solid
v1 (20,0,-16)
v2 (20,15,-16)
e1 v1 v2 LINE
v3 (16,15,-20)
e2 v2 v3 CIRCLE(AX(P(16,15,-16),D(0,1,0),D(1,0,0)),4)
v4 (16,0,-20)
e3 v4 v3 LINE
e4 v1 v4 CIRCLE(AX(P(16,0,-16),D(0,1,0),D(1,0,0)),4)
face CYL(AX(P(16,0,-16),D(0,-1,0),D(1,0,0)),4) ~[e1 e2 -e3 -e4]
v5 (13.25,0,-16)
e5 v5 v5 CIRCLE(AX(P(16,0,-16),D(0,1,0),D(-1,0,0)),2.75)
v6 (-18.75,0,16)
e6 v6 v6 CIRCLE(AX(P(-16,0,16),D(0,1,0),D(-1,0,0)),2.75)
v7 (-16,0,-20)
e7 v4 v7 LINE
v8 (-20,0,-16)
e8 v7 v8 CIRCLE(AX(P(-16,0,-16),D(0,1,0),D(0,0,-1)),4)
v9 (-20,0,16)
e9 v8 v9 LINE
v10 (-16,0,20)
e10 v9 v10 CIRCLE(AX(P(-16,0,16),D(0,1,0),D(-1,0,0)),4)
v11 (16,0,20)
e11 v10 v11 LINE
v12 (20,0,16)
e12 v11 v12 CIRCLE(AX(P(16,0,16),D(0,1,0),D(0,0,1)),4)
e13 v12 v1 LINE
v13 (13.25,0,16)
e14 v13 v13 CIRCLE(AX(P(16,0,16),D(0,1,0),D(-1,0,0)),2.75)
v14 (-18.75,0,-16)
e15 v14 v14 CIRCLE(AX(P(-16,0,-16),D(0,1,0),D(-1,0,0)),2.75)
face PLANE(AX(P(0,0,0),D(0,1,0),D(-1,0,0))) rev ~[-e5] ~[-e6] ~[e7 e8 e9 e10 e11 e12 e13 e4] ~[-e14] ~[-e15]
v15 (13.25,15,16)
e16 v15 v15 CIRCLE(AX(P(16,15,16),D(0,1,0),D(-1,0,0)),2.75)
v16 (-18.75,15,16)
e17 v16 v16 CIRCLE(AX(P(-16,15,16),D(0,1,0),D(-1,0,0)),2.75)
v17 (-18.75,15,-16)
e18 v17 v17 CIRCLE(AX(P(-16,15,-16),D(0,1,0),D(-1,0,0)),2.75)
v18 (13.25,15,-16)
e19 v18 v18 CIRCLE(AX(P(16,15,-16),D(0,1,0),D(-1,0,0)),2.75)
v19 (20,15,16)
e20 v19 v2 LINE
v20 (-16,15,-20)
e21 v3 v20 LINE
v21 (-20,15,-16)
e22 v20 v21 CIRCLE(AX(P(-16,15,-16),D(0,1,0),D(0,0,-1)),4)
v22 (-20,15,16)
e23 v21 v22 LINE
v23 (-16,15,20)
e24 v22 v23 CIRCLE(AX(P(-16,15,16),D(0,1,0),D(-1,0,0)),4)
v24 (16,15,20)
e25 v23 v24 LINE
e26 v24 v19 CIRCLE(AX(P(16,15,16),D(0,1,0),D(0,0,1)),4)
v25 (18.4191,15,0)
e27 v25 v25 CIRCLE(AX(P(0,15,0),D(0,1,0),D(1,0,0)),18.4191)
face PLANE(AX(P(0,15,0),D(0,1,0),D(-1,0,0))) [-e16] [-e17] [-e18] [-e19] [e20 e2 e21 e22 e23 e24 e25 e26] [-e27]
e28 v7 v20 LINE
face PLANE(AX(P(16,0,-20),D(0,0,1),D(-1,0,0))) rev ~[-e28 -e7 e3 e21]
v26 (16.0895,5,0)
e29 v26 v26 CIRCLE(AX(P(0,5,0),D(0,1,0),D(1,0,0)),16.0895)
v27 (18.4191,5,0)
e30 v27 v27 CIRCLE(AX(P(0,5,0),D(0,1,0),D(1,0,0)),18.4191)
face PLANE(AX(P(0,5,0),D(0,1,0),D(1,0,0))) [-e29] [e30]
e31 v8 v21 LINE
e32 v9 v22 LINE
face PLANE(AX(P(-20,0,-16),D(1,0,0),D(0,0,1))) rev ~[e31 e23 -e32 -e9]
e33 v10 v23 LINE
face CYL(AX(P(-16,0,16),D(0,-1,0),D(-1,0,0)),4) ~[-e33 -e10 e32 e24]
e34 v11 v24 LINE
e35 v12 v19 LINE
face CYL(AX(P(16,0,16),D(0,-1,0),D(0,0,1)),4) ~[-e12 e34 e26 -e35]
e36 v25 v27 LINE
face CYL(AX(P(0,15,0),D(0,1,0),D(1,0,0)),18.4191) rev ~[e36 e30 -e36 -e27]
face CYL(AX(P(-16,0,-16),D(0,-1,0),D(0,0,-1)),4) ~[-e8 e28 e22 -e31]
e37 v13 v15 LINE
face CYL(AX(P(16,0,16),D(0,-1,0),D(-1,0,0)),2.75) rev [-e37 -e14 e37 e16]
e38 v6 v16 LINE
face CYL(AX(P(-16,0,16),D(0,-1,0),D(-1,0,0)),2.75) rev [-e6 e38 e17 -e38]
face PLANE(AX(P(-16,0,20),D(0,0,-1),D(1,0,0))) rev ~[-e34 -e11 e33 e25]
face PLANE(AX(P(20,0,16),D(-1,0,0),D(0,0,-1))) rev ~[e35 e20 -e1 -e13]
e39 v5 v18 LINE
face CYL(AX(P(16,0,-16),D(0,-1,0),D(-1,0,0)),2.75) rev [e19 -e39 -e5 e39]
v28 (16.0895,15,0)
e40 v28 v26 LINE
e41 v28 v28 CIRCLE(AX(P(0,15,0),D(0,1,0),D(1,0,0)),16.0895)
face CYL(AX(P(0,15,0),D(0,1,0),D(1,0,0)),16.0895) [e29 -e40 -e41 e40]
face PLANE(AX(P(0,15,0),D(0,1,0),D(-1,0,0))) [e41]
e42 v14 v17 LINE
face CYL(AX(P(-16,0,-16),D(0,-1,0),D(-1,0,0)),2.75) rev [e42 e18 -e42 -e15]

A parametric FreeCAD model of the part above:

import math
import FreeCAD as App
import Part
import Sketcher

V = App.Vector
Q = App.Units.Quantity

doc = App.newDocument("Part")
body = doc.addObject("PartDesign::Body", "Body")

# Sketch on XZ plane
sketch1 = doc.addObject("Sketcher::SketchObject", "Sketch")
body.addObject(sketch1)
sketch1.AttachmentSupport = (doc.XZ_Plane, [""])
sketch1.MapMode = "FlatFace"
sketch1.addGeometry([
    Part.ArcOfCircle(Part.Circle(V(-16, 16, 0), V(0, 0, 1), 4), math.radians(90), math.radians(180)),  # 0
    Part.LineSegment(V(-16, 20, 0), V(16, 20, 0)),  # 1
    Part.ArcOfCircle(Part.Circle(V(16, 16, 0), V(0, 0, 1), 4), math.radians(0), math.radians(90)),  # 2
    Part.LineSegment(V(20, 16, 0), V(20, -16, 0)),  # 3
    Part.ArcOfCircle(Part.Circle(V(16, -16, 0), V(0, 0, 1), 4), math.radians(-90), math.radians(0)),  # 4
    Part.LineSegment(V(16, -20, 0), V(-16, -20, 0)),  # 5
    Part.ArcOfCircle(Part.Circle(V(-16, -16, 0), V(0, 0, 1), 4), math.radians(180), math.radians(270)),  # 6
    Part.LineSegment(V(-20, -16, 0), V(-20, 16, 0)),  # 7
    Part.Circle(V(16, -16, 0), V(0, 0, 1), 2.8),  # 8
    Part.Circle(V(-16, -16, 0), V(0, 0, 1), 2.8),  # 9
    Part.Circle(V(16, 16, 0), V(0, 0, 1), 2.8),  # 10
    Part.Circle(V(-16, 16, 0), V(0, 0, 1), 2.8),  # 11
], False)
sketch1.addConstraint([
    Sketcher.Constraint("Tangent", 0, 1, 1, 1),
    Sketcher.Constraint("Tangent", 1, 2, 2, 2),
    Sketcher.Constraint("Tangent", 2, 1, 3, 1),
    Sketcher.Constraint("Tangent", 3, 2, 4, 2),
    Sketcher.Constraint("Tangent", 4, 1, 5, 1),
    Sketcher.Constraint("Tangent", 5, 2, 6, 2),
    Sketcher.Constraint("Tangent", 6, 1, 7, 1),
    Sketcher.Constraint("Tangent", 7, 2, 0, 2),
    Sketcher.Constraint("Horizontal", 1),
    Sketcher.Constraint("Vertical", 3),
    Sketcher.Constraint("Horizontal", 5),
    Sketcher.Constraint("Vertical", 7),
    Sketcher.Constraint("Coincident", 8, 3, 4, 3),
    Sketcher.Constraint("Coincident", 9, 3, 6, 3),
    Sketcher.Constraint("Coincident", 10, 3, 2, 3),
    Sketcher.Constraint("Coincident", 11, 3, 0, 3),
    Sketcher.Constraint("Equal", 0, 2),
    Sketcher.Constraint("Equal", 2, 4),
    Sketcher.Constraint("Equal", 4, 6),
    Sketcher.Constraint("Equal", 8, 9),
    Sketcher.Constraint("Equal", 9, 10),
    Sketcher.Constraint("Equal", 10, 11),
    Sketcher.Constraint("Symmetric", 0, 3, 4, 3, -1, 1),
    Sketcher.Constraint("Equal", 5, 3),
    Sketcher.Constraint("Diameter", 8, Q("5.5 mm")),
    Sketcher.Constraint("DistanceX", 1, 1, 1, 2, Q("32 mm")),
    Sketcher.Constraint("Radius", 0, Q("4 mm")),
])
pad1 = doc.addObject("PartDesign::Pad", "Pad")
body.addObject(pad1)
pad1.Profile = sketch1
pad1.Length = 15
pad1.Reversed = True

# Sketch on XZ plane
sketch2 = doc.addObject("Sketcher::SketchObject", "Sketch001")
body.addObject(sketch2)
sketch2.AttachmentSupport = (doc.XZ_Plane, [""])
sketch2.MapMode = "FlatFace"
sketch2.AttachmentOffset = App.Placement(V(0, 0, -15), App.Rotation())
sketch2.addGeometry([
    Part.Circle(V(0, 0, 0), V(0, 0, 1), 18),
    Part.Circle(V(0, 0, 0), V(0, 0, 1), 16),
], False)
sketch2.addConstraint([
    Sketcher.Constraint("Coincident", 0, 3, -1, 1),
    Sketcher.Constraint("Coincident", 1, 3, -1, 1),
    Sketcher.Constraint("Diameter", 1, Q("32.179 mm")),
    Sketcher.Constraint("Diameter", 0, Q("36.8382 mm")),
])
pocket1 = doc.addObject("PartDesign::Pocket", "Pocket")
body.addObject(pocket1)
pocket1.Profile = sketch2
pocket1.Length = 10
pocket1.Reversed = True

doc.recompute()
